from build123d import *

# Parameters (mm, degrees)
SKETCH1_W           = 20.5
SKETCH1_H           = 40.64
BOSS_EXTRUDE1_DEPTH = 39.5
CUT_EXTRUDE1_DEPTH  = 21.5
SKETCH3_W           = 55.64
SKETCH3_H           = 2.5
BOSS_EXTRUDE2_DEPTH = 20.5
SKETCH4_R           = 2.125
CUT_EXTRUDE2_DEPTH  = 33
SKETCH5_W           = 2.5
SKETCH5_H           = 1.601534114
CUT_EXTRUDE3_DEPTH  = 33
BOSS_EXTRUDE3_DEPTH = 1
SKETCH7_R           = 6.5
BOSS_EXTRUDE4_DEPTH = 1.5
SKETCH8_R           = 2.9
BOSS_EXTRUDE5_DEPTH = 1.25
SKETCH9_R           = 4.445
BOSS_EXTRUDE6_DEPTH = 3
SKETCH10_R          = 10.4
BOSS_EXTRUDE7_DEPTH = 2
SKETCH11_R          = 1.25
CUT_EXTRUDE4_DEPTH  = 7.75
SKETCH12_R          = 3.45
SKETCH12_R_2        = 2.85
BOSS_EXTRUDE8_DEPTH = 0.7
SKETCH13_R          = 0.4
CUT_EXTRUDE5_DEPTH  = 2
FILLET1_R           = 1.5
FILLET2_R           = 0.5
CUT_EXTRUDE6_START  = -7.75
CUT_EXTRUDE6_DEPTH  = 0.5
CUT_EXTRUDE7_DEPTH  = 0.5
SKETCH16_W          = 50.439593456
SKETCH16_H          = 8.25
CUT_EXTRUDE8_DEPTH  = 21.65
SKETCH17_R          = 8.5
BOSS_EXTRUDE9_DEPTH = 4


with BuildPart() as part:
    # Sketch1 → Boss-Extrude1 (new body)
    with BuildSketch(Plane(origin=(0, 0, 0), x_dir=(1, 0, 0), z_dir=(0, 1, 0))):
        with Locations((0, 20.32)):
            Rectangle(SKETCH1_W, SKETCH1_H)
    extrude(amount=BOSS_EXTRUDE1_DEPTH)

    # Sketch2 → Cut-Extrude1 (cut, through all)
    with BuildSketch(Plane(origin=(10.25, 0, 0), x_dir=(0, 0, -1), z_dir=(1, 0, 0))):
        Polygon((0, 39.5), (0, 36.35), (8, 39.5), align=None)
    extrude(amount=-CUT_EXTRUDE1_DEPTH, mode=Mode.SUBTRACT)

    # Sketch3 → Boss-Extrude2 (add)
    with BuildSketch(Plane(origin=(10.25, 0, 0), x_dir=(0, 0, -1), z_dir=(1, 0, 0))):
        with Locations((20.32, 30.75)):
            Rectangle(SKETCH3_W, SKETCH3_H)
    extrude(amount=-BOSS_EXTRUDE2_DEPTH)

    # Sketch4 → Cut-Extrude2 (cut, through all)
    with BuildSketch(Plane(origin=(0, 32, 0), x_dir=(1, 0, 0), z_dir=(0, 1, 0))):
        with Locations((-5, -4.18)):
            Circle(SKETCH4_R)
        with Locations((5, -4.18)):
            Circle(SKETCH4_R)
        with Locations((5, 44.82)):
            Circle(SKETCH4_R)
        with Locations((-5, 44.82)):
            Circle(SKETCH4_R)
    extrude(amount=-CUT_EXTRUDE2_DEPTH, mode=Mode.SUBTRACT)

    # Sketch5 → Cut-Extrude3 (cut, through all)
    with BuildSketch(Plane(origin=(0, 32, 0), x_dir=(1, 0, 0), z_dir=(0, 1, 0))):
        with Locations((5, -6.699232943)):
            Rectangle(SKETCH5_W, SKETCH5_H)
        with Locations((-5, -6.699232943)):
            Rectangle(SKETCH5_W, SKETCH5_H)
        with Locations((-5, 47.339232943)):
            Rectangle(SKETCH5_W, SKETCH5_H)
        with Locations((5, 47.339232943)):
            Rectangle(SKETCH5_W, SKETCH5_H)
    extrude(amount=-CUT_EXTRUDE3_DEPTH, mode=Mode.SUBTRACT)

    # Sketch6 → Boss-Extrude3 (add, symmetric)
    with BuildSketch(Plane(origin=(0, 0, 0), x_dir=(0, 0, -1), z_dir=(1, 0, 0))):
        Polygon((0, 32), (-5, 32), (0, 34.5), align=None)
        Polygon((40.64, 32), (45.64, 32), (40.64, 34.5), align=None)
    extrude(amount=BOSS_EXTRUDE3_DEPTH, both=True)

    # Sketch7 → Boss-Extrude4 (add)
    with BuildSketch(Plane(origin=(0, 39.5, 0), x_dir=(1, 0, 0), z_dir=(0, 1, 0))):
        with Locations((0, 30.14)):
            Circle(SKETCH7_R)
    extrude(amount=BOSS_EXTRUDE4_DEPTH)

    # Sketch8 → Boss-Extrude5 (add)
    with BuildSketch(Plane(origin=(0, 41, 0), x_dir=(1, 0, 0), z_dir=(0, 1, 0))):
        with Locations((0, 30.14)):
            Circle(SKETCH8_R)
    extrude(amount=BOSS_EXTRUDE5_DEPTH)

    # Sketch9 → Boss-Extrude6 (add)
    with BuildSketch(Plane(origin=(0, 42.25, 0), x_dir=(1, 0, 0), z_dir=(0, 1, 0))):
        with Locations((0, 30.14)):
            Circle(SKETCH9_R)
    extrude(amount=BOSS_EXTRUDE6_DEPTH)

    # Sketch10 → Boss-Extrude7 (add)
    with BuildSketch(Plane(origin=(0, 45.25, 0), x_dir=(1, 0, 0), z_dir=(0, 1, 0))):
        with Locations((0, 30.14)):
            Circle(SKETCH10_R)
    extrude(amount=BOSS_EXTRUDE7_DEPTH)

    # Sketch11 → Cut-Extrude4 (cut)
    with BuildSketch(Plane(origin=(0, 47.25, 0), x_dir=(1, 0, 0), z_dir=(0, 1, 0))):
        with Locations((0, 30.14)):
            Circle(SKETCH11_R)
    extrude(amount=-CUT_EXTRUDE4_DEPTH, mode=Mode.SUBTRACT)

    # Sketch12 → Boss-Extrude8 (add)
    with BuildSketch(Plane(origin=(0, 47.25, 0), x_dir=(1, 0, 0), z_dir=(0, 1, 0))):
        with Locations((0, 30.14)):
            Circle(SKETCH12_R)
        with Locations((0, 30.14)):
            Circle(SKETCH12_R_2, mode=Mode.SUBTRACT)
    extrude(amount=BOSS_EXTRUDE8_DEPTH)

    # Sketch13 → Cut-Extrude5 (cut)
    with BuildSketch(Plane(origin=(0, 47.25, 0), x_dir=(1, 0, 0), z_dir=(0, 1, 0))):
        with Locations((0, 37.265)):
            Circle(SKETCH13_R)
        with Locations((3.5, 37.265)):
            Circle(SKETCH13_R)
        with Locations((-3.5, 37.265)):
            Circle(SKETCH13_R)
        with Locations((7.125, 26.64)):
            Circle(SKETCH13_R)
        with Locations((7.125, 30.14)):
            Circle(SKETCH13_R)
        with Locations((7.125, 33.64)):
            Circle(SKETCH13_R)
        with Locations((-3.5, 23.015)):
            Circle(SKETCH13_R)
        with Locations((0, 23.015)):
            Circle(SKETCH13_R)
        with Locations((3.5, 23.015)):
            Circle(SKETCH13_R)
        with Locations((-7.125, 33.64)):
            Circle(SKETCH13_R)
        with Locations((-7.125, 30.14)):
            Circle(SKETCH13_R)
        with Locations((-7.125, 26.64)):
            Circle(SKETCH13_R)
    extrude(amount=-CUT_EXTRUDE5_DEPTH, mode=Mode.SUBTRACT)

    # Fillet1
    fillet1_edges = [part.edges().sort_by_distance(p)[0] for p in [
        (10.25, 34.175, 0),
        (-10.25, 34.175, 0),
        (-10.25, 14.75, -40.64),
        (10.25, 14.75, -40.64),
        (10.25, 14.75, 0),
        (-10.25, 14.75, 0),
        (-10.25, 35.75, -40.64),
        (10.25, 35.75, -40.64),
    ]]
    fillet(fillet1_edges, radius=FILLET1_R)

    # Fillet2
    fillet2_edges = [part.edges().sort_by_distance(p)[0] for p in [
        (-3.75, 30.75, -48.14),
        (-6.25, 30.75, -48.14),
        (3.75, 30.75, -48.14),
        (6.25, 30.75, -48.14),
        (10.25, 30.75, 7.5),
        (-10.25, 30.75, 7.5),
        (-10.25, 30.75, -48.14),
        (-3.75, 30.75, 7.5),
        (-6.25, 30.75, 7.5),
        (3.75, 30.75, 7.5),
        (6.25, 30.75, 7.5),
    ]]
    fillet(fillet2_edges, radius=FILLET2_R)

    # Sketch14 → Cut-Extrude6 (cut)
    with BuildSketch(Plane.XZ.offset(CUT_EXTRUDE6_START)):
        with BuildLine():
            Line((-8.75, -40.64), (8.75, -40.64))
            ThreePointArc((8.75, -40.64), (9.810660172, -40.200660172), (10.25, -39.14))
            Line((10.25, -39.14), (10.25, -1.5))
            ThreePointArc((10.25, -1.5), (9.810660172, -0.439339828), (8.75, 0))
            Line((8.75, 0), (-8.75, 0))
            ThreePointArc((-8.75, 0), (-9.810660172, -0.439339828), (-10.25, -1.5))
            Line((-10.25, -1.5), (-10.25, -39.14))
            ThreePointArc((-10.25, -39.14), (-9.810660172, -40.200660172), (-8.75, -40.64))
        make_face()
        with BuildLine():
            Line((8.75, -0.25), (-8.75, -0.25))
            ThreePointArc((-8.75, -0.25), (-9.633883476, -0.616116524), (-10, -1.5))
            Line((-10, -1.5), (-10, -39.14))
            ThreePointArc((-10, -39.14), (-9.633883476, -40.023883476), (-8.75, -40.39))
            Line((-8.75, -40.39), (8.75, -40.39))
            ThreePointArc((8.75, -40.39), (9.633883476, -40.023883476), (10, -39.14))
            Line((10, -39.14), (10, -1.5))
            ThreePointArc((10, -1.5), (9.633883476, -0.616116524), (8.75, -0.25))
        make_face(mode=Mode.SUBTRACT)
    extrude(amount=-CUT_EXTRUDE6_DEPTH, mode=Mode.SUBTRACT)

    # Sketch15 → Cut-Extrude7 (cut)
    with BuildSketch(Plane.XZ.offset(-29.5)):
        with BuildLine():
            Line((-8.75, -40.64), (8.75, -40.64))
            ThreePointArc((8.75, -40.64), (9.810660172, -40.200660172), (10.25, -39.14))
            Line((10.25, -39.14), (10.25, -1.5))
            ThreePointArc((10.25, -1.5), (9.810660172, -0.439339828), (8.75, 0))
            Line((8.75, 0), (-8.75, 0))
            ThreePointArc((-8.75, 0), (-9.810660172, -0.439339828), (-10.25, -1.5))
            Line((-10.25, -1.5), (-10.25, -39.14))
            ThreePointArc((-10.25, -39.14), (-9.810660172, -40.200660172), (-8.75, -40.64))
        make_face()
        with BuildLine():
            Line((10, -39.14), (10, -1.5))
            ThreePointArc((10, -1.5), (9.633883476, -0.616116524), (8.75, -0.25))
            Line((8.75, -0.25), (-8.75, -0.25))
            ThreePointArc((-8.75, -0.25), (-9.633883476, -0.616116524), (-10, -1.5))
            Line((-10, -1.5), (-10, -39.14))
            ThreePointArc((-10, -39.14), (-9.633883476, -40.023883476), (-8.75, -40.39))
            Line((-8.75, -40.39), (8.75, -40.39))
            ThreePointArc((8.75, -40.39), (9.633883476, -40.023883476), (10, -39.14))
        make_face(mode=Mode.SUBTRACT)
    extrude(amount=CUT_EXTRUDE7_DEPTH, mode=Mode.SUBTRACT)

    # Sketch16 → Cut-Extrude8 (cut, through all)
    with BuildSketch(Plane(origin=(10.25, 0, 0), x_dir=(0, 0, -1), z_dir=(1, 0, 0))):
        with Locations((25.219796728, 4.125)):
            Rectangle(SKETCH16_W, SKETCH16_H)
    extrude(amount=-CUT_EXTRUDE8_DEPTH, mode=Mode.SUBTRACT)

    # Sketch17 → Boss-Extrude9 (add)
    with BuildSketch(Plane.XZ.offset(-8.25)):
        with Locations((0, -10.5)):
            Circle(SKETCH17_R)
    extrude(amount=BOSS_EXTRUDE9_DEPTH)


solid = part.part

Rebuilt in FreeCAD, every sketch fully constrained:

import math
import FreeCAD as App
import Part
import Sketcher
Q = App.Units.Quantity


def edges_at(feature, points):
    """Names of the edges that pass closest to the given points."""
    edges = feature.Shape.Edges
    near = lambda p: min(range(len(edges)), key=lambda i: edges[i].distToShape(Part.Vertex(*p))[0])
    return sorted({f"Edge{near(p) + 1}" for p in points})

doc = App.newDocument("Part")
body = doc.addObject("PartDesign::Body", "Body")

# Sketch on XZ plane
sketch1 = body.newObject("Sketcher::SketchObject", "Sketch")
sketch1.AttachmentSupport = (doc.getObject("XZ_Plane"), [""])
sketch1.MapMode = "FlatFace"
sketch1.addGeometry([
    Part.LineSegment(App.Vector(-10.25, -40.64, 0), App.Vector(-10.25, 0, 0)),
    Part.LineSegment(App.Vector(-10.25, 0, 0), App.Vector(10.25, 0, 0)),
    Part.LineSegment(App.Vector(10.25, 0, 0), App.Vector(10.25, -40.64, 0)),
    Part.LineSegment(App.Vector(10.25, -40.64, 0), App.Vector(-10.25, -40.64, 0)),
], False)
sketch1.addConstraint([
    Sketcher.Constraint("Coincident", 0, 2, 1, 1),
    Sketcher.Constraint("Coincident", 1, 2, 2, 1),
    Sketcher.Constraint("Coincident", 2, 2, 3, 1),
    Sketcher.Constraint("Coincident", 3, 2, 0, 1),
    Sketcher.Constraint("Vertical", 0),
    Sketcher.Constraint("Horizontal", 1),
    Sketcher.Constraint("Vertical", 2),
    Sketcher.Constraint("Horizontal", 3),
    Sketcher.Constraint("Symmetric", 0, 2, 1, 2, -1, 1),
    Sketcher.Constraint("DistanceX", 1, 1, 1, 2, Q("20.5 mm")),
    Sketcher.Constraint("DistanceY", 0, 1, 0, 2, Q("40.64 mm")),
])
pad1 = body.newObject("PartDesign::Pad", "Pad")
pad1.Profile = sketch1
pad1.Length = 39.5
pad1.Reversed = True

# Sketch on YZ plane
sketch2 = body.newObject("Sketcher::SketchObject", "Sketch001")
sketch2.AttachmentSupport = (doc.getObject("YZ_Plane"), [""])
sketch2.MapMode = "FlatFace"
sketch2.AttachmentOffset = App.Placement(App.Vector(0, 0, 10.25), App.Rotation())
sketch2.addGeometry([
    Part.LineSegment(App.Vector(39.5, 0, 0), App.Vector(36.35, 0, 0)),
    Part.LineSegment(App.Vector(36.35, 0, 0), App.Vector(39.5, -8, 0)),
    Part.LineSegment(App.Vector(39.5, -8, 0), App.Vector(39.5, 0, 0)),
], False)
sketch2.addConstraint([
    Sketcher.Constraint("Coincident", 0, 2, 1, 1),
    Sketcher.Constraint("Coincident", 1, 2, 2, 1),
    Sketcher.Constraint("Coincident", 2, 2, 0, 1),
    Sketcher.Constraint("Horizontal", 0),
    Sketcher.Constraint("Vertical", 2),
    Sketcher.Constraint("PointOnObject", 0, 2, -1),
    Sketcher.Constraint("DistanceY", 2, 1, 2, 2, Q("8 mm")),
    Sketcher.Constraint("DistanceX", 0, 2, 0, 1, Q("3.15 mm")),
    Sketcher.Constraint("DistanceX", -1, 1, 1, 2, Q("39.5 mm")),
])
pocket1 = body.newObject("PartDesign::Pocket", "Pocket")
pocket1.Profile = sketch2
pocket1.Type = "ThroughAll"

# Sketch on YZ plane
sketch3 = body.newObject("Sketcher::SketchObject", "Sketch002")
sketch3.AttachmentSupport = (doc.getObject("YZ_Plane"), [""])
sketch3.MapMode = "FlatFace"
sketch3.AttachmentOffset = App.Placement(App.Vector(0, 0, 10.25), App.Rotation())
sketch3.addGeometry([
    Part.LineSegment(App.Vector(32, 7.5, 0), App.Vector(29.5, 7.5, 0)),
    Part.LineSegment(App.Vector(29.5, 7.5, 0), App.Vector(29.5, -48.14, 0)),
    Part.LineSegment(App.Vector(29.5, -48.14, 0), App.Vector(32, -48.14, 0)),
    Part.LineSegment(App.Vector(32, -48.14, 0), App.Vector(32, 7.5, 0)),
], False)
sketch3.addConstraint([
    Sketcher.Constraint("Coincident", 0, 2, 1, 1),
    Sketcher.Constraint("Coincident", 1, 2, 2, 1),
    Sketcher.Constraint("Coincident", 2, 2, 3, 1),
    Sketcher.Constraint("Coincident", 3, 2, 0, 1),
    Sketcher.Constraint("Horizontal", 0),
    Sketcher.Constraint("Vertical", 1),
    Sketcher.Constraint("Horizontal", 2),
    Sketcher.Constraint("Vertical", 3),
    Sketcher.Constraint("DistanceX", 0, 2, 0, 1, Q("2.5 mm")),
    Sketcher.Constraint("DistanceX", -1, 1, 2, 2, Q("32 mm")),
    Sketcher.Constraint("DistanceY", 1, 2, 1, 1, Q("55.64 mm")),
    Sketcher.Constraint("DistanceY", -1, 1, 0, 2, Q("7.5 mm")),
])
pad2 = body.newObject("PartDesign::Pad", "Pad001")
pad2.Profile = sketch3
pad2.Length = 20.5
pad2.Reversed = True

# Sketch on XZ plane
sketch4 = body.newObject("Sketcher::SketchObject", "Sketch003")
sketch4.AttachmentSupport = (doc.getObject("XZ_Plane"), [""])
sketch4.MapMode = "FlatFace"
sketch4.AttachmentOffset = App.Placement(App.Vector(0, 0, -32), App.Rotation())
sketch4.addGeometry([
    Part.Circle(App.Vector(-5, 4.18, 0), App.Vector(0, 0, 1), 2.125),
    Part.Circle(App.Vector(5, 4.18, 0), App.Vector(0, 0, 1), 2.125),
    Part.Circle(App.Vector(5, -44.82, 0), App.Vector(0, 0, 1), 2.125),
    Part.Circle(App.Vector(-5, -44.82, 0), App.Vector(0, 0, 1), 2.125),
], False)
sketch4.addConstraint([
    Sketcher.Constraint("Equal", 0, 1),
    Sketcher.Constraint("Equal", 1, 2),
    Sketcher.Constraint("Equal", 2, 3),
    Sketcher.Constraint("Symmetric", 0, 3, 1, 3, -2),
    Sketcher.Constraint("Symmetric", 2, 3, 3, 3, -2),
    Sketcher.Constraint("Vertical", 1, 3, 2, 3),
    Sketcher.Constraint("Diameter", 0, Q("4.25 mm")),
    Sketcher.Constraint("DistanceX", 0, 3, -1, 1, Q("5 mm")),
    Sketcher.Constraint("DistanceY", 2, 3, 1, 3, Q("49 mm")),
    Sketcher.Constraint("DistanceY", -1, 1, 0, 3, Q("4.18 mm")),
])
pocket2 = body.newObject("PartDesign::Pocket", "Pocket001")
pocket2.Profile = sketch4
pocket2.Type = "ThroughAll"
pocket2.Reversed = True

# Sketch on XZ plane
sketch5 = body.newObject("Sketcher::SketchObject", "Sketch004")
sketch5.AttachmentSupport = (doc.getObject("XZ_Plane"), [""])
sketch5.MapMode = "FlatFace"
sketch5.AttachmentOffset = App.Placement(App.Vector(0, 0, -32), App.Rotation())
sketch5.addGeometry([
    Part.LineSegment(App.Vector(3.75, 5.898466, 0), App.Vector(3.75, 7.5, 0)),  # 0
    Part.LineSegment(App.Vector(3.75, 7.5, 0), App.Vector(6.25, 7.5, 0)),  # 1
    Part.LineSegment(App.Vector(6.25, 7.5, 0), App.Vector(6.25, 5.898466, 0)),  # 2
    Part.LineSegment(App.Vector(6.25, 5.898466, 0), App.Vector(3.75, 5.898466, 0)),  # 3
    Part.LineSegment(App.Vector(-6.25, 5.898466, 0), App.Vector(-6.25, 7.5, 0)),  # 4
    Part.LineSegment(App.Vector(-6.25, 7.5, 0), App.Vector(-3.75, 7.5, 0)),  # 5
    Part.LineSegment(App.Vector(-3.75, 7.5, 0), App.Vector(-3.75, 5.898466, 0)),  # 6
    Part.LineSegment(App.Vector(-3.75, 5.898466, 0), App.Vector(-6.25, 5.898466, 0)),  # 7
    Part.LineSegment(App.Vector(-6.25, -48.14, 0), App.Vector(-6.25, -46.538466, 0)),  # 8
    Part.LineSegment(App.Vector(-6.25, -46.538466, 0), App.Vector(-3.75, -46.538466, 0)),  # 9
    Part.LineSegment(App.Vector(-3.75, -46.538466, 0), App.Vector(-3.75, -48.14, 0)),  # 10
    Part.LineSegment(App.Vector(-3.75, -48.14, 0), App.Vector(-6.25, -48.14, 0)),  # 11
    Part.LineSegment(App.Vector(3.75, -48.14, 0), App.Vector(3.75, -46.538466, 0)),  # 12
    Part.LineSegment(App.Vector(3.75, -46.538466, 0), App.Vector(6.25, -46.538466, 0)),  # 13
    Part.LineSegment(App.Vector(6.25, -46.538466, 0), App.Vector(6.25, -48.14, 0)),  # 14
    Part.LineSegment(App.Vector(6.25, -48.14, 0), App.Vector(3.75, -48.14, 0)),  # 15
], False)
sketch5.addConstraint([
    Sketcher.Constraint("Coincident", 0, 2, 1, 1),
    Sketcher.Constraint("Coincident", 1, 2, 2, 1),
    Sketcher.Constraint("Coincident", 2, 2, 3, 1),
    Sketcher.Constraint("Coincident", 3, 2, 0, 1),
    Sketcher.Constraint("Coincident", 4, 2, 5, 1),
    Sketcher.Constraint("Coincident", 5, 2, 6, 1),
    Sketcher.Constraint("Coincident", 6, 2, 7, 1),
    Sketcher.Constraint("Coincident", 7, 2, 4, 1),
    Sketcher.Constraint("Coincident", 8, 2, 9, 1),
    Sketcher.Constraint("Coincident", 9, 2, 10, 1),
    Sketcher.Constraint("Coincident", 10, 2, 11, 1),
    Sketcher.Constraint("Coincident", 11, 2, 8, 1),
    Sketcher.Constraint("Coincident", 12, 2, 13, 1),
    Sketcher.Constraint("Coincident", 13, 2, 14, 1),
    Sketcher.Constraint("Coincident", 14, 2, 15, 1),
    Sketcher.Constraint("Coincident", 15, 2, 12, 1),
    Sketcher.Constraint("Vertical", 0),
    Sketcher.Constraint("Horizontal", 1),
    Sketcher.Constraint("Vertical", 2),
    Sketcher.Constraint("Horizontal", 3),
    Sketcher.Constraint("Vertical", 4),
    Sketcher.Constraint("Horizontal", 5),
    Sketcher.Constraint("Vertical", 6),
    Sketcher.Constraint("Horizontal", 7),
    Sketcher.Constraint("Vertical", 8),
    Sketcher.Constraint("Horizontal", 9),
    Sketcher.Constraint("Vertical", 10),
    Sketcher.Constraint("Horizontal", 11),
    Sketcher.Constraint("Vertical", 12),
    Sketcher.Constraint("Horizontal", 13),
    Sketcher.Constraint("Vertical", 14),
    Sketcher.Constraint("Horizontal", 15),
    Sketcher.Constraint("Symmetric", 1, 2, 4, 2, -2),
    Sketcher.Constraint("Symmetric", 3, 2, 6, 2, -2),
    Sketcher.Constraint("Symmetric", 9, 2, 12, 2, -2),
    Sketcher.Constraint("Symmetric", 11, 2, 14, 2, -2),
    Sketcher.Constraint("Vertical", 7, 2, 8, 2),
    Sketcher.Constraint("Vertical", 6, 2, 9, 2),
    Sketcher.Constraint("Equal", 6, 8),
    Sketcher.Constraint("DistanceX", 1, 1, 1, 2, Q("2.5 mm")),
    Sketcher.Constraint("DistanceX", 4, 2, 0, 2, Q("10 mm")),
    Sketcher.Constraint("DistanceY", -1, 1, 0, 2, Q("7.5 mm")),
    Sketcher.Constraint("DistanceY", 10, 2, -1, 1, Q("48.14 mm")),
    Sketcher.Constraint("DistanceY", 0, 1, 0, 2, Q("1.601534 mm")),
])
pocket3 = body.newObject("PartDesign::Pocket", "Pocket002")
pocket3.Profile = sketch5
pocket3.Type = "ThroughAll"
pocket3.Reversed = True

# Sketch on YZ plane
sketch6 = body.newObject("Sketcher::SketchObject", "Sketch005")
sketch6.AttachmentSupport = (doc.getObject("YZ_Plane"), [""])
sketch6.MapMode = "FlatFace"
sketch6.addGeometry([
    Part.LineSegment(App.Vector(32, 5, 0), App.Vector(32, 0, 0)),  # 0
    Part.LineSegment(App.Vector(32, 0, 0), App.Vector(34.5, 0, 0)),  # 1
    Part.LineSegment(App.Vector(34.5, 0, 0), App.Vector(32, 5, 0)),  # 2
    Part.LineSegment(App.Vector(32, -40.64, 0), App.Vector(32, -45.64, 0)),  # 3
    Part.LineSegment(App.Vector(32, -45.64, 0), App.Vector(34.5, -40.64, 0)),  # 4
    Part.LineSegment(App.Vector(34.5, -40.64, 0), App.Vector(32, -40.64, 0)),  # 5
], False)
sketch6.addConstraint([
    Sketcher.Constraint("Coincident", 0, 2, 1, 1),
    Sketcher.Constraint("Coincident", 1, 2, 2, 1),
    Sketcher.Constraint("Coincident", 2, 2, 0, 1),
    Sketcher.Constraint("Coincident", 3, 2, 4, 1),
    Sketcher.Constraint("Coincident", 4, 2, 5, 1),
    Sketcher.Constraint("Coincident", 5, 2, 3, 1),
    Sketcher.Constraint("Vertical", 0),
    Sketcher.Constraint("Horizontal", 1),
    Sketcher.Constraint("Vertical", 3),
    Sketcher.Constraint("Horizontal", 5),
    Sketcher.Constraint("PointOnObject", 0, 2, -1),
    Sketcher.Constraint("Vertical", 2, 2, 3, 2),
    Sketcher.Constraint("Vertical", 1, 2, 4, 2),
    Sketcher.Constraint("Equal", 0, 3),
    Sketcher.Constraint("DistanceY", 0, 2, 0, 1, Q("5 mm")),
    Sketcher.Constraint("DistanceX", 1, 1, 1, 2, Q("2.5 mm")),
    Sketcher.Constraint("DistanceX", -1, 1, 0, 2, Q("32 mm")),
    Sketcher.Constraint("DistanceY", 3, 2, -1, 1, Q("45.64 mm")),
])
pad3 = body.newObject("PartDesign::Pad", "Pad002")
pad3.Profile = sketch6
pad3.Length = 2
pad3.Midplane = True

# Sketch on XZ plane
sketch7 = body.newObject("Sketcher::SketchObject", "Sketch006")
sketch7.AttachmentSupport = (doc.getObject("XZ_Plane"), [""])
sketch7.MapMode = "FlatFace"
sketch7.AttachmentOffset = App.Placement(App.Vector(0, 0, -39.5), App.Rotation())
sketch7.addGeometry(Part.Circle(App.Vector(0, -30.14, 0), App.Vector(0, 0, 1), 6.5), False)
sketch7.addConstraint([
    Sketcher.Constraint("PointOnObject", 0, 3, -2),
    Sketcher.Constraint("Diameter", 0, Q("13 mm")),
    Sketcher.Constraint("DistanceY", 0, 3, -1, 1, Q("30.14 mm")),
])
pad4 = body.newObject("PartDesign::Pad", "Pad003")
pad4.Profile = sketch7
pad4.Length = 1.5
pad4.Reversed = True

# Sketch on XZ plane
sketch8 = body.newObject("Sketcher::SketchObject", "Sketch007")
sketch8.AttachmentSupport = (doc.getObject("XZ_Plane"), [""])
sketch8.MapMode = "FlatFace"
sketch8.AttachmentOffset = App.Placement(App.Vector(0, 0, -41), App.Rotation())
sketch8.addGeometry(Part.Circle(App.Vector(0, -30.14, 0), App.Vector(0, 0, 1), 2.9), False)
sketch8.addConstraint([
    Sketcher.Constraint("PointOnObject", 0, 3, -2),
    Sketcher.Constraint("Diameter", 0, Q("5.8 mm")),
    Sketcher.Constraint("DistanceY", 0, 3, -1, 1, Q("30.14 mm")),
])
pad5 = body.newObject("PartDesign::Pad", "Pad004")
pad5.Profile = sketch8
pad5.Length = 1.25
pad5.Reversed = True

# Sketch on XZ plane
sketch9 = body.newObject("Sketcher::SketchObject", "Sketch008")
sketch9.AttachmentSupport = (doc.getObject("XZ_Plane"), [""])
sketch9.MapMode = "FlatFace"
sketch9.AttachmentOffset = App.Placement(App.Vector(0, 0, -42.25), App.Rotation())
sketch9.addGeometry(Part.Circle(App.Vector(0, -30.14, 0), App.Vector(0, 0, 1), 4.445), False)
sketch9.addConstraint([
    Sketcher.Constraint("PointOnObject", 0, 3, -2),
    Sketcher.Constraint("Diameter", 0, Q("8.89 mm")),
    Sketcher.Constraint("DistanceY", 0, 3, -1, 1, Q("30.14 mm")),
])
pad6 = body.newObject("PartDesign::Pad", "Pad005")
pad6.Profile = sketch9
pad6.Length = 3
pad6.Reversed = True

# Sketch on XZ plane
sketch10 = body.newObject("Sketcher::SketchObject", "Sketch009")
sketch10.AttachmentSupport = (doc.getObject("XZ_Plane"), [""])
sketch10.MapMode = "FlatFace"
sketch10.AttachmentOffset = App.Placement(App.Vector(0, 0, -45.25), App.Rotation())
sketch10.addGeometry(Part.Circle(App.Vector(0, -30.14, 0), App.Vector(0, 0, 1), 10.4), False)
sketch10.addConstraint([
    Sketcher.Constraint("PointOnObject", 0, 3, -2),
    Sketcher.Constraint("Diameter", 0, Q("20.8 mm")),
    Sketcher.Constraint("DistanceY", 0, 3, -1, 1, Q("30.14 mm")),
])
pad7 = body.newObject("PartDesign::Pad", "Pad006")
pad7.Profile = sketch10
pad7.Length = 2
pad7.Reversed = True

# Sketch on XZ plane
sketch11 = body.newObject("Sketcher::SketchObject", "Sketch010")
sketch11.AttachmentSupport = (doc.getObject("XZ_Plane"), [""])
sketch11.MapMode = "FlatFace"
sketch11.AttachmentOffset = App.Placement(App.Vector(0, 0, -47.25), App.Rotation())
sketch11.addGeometry(Part.Circle(App.Vector(0, -30.14, 0), App.Vector(0, 0, 1), 1.25), False)
sketch11.addConstraint([
    Sketcher.Constraint("PointOnObject", 0, 3, -2),
    Sketcher.Constraint("Diameter", 0, Q("2.5 mm")),
    Sketcher.Constraint("DistanceY", 0, 3, -1, 1, Q("30.14 mm")),
])
pocket4 = body.newObject("PartDesign::Pocket", "Pocket003")
pocket4.Profile = sketch11
pocket4.Length = 7.75
pocket4.Reversed = True

# Sketch on XZ plane
sketch12 = body.newObject("Sketcher::SketchObject", "Sketch011")
sketch12.AttachmentSupport = (doc.getObject("XZ_Plane"), [""])
sketch12.MapMode = "FlatFace"
sketch12.AttachmentOffset = App.Placement(App.Vector(0, 0, -47.25), App.Rotation())
sketch12.addGeometry([
    Part.Circle(App.Vector(0, -30.14, 0), App.Vector(0, 0, 1), 3.45),
    Part.Circle(App.Vector(0, -30.14, 0), App.Vector(0, 0, 1), 2.85),
], False)
sketch12.addConstraint([
    Sketcher.Constraint("Coincident", 1, 3, 0, 3),
    Sketcher.Constraint("PointOnObject", 0, 3, -2),
    Sketcher.Constraint("Diameter", 0, Q("6.9 mm")),
    Sketcher.Constraint("Diameter", 1, Q("5.7 mm")),
    Sketcher.Constraint("DistanceY", 0, 3, -1, 1, Q("30.14 mm")),
])
pad8 = body.newObject("PartDesign::Pad", "Pad007")
pad8.Profile = sketch12
pad8.Length = 0.7
pad8.Reversed = True

# Sketch on XZ plane
sketch13 = body.newObject("Sketcher::SketchObject", "Sketch012")
sketch13.AttachmentSupport = (doc.getObject("XZ_Plane"), [""])
sketch13.MapMode = "FlatFace"
sketch13.AttachmentOffset = App.Placement(App.Vector(0, 0, -47.25), App.Rotation())
sketch13.addGeometry([
    Part.Circle(App.Vector(0, -37.265, 0), App.Vector(0, 0, 1), 0.4),  # 0
    Part.Circle(App.Vector(3.5, -37.265, 0), App.Vector(0, 0, 1), 0.4),  # 1
    Part.Circle(App.Vector(-3.5, -37.265, 0), App.Vector(0, 0, 1), 0.4),  # 2
    Part.Circle(App.Vector(7.125, -26.64, 0), App.Vector(0, 0, 1), 0.4),  # 3
    Part.Circle(App.Vector(7.125, -30.14, 0), App.Vector(0, 0, 1), 0.4),  # 4
    Part.Circle(App.Vector(7.125, -33.64, 0), App.Vector(0, 0, 1), 0.4),  # 5
    Part.Circle(App.Vector(-3.5, -23.015, 0), App.Vector(0, 0, 1), 0.4),  # 6
    Part.Circle(App.Vector(0, -23.015, 0), App.Vector(0, 0, 1), 0.4),  # 7
    Part.Circle(App.Vector(3.5, -23.015, 0), App.Vector(0, 0, 1), 0.4),  # 8
    Part.Circle(App.Vector(-7.125, -33.64, 0), App.Vector(0, 0, 1), 0.4),  # 9
    Part.Circle(App.Vector(-7.125, -30.14, 0), App.Vector(0, 0, 1), 0.4),  # 10
    Part.Circle(App.Vector(-7.125, -26.64, 0), App.Vector(0, 0, 1), 0.4),  # 11
], False)
sketch13.addConstraint([
    Sketcher.Constraint("Equal", 0, 1),
    Sketcher.Constraint("Equal", 1, 2),
    Sketcher.Constraint("Equal", 2, 3),
    Sketcher.Constraint("Equal", 3, 4),
    Sketcher.Constraint("Equal", 4, 5),
    Sketcher.Constraint("Equal", 5, 6),
    Sketcher.Constraint("Equal", 6, 7),
    Sketcher.Constraint("Equal", 7, 8),
    Sketcher.Constraint("Equal", 8, 9),
    Sketcher.Constraint("Equal", 9, 10),
    Sketcher.Constraint("Equal", 10, 11),
    Sketcher.Constraint("Symmetric", 1, 3, 2, 3, -2),
    Sketcher.Constraint("Symmetric", 6, 3, 8, 3, -2),
    Sketcher.Constraint("Symmetric", 5, 3, 9, 3, -2),
    Sketcher.Constraint("Symmetric", 4, 3, 10, 3, -2),
    Sketcher.Constraint("Symmetric", 3, 3, 11, 3, -2),
    Sketcher.Constraint("PointOnObject", 0, 3, -2),
    Sketcher.Constraint("PointOnObject", 7, 3, -2),
    Sketcher.Constraint("Horizontal", 0, 3, 1, 3),
    Sketcher.Constraint("Horizontal", 6, 3, 7, 3),
    Sketcher.Constraint("Vertical", 3, 3, 4, 3),
    Sketcher.Constraint("Vertical", 4, 3, 5, 3),
    Sketcher.Constraint("Vertical", 2, 3, 6, 3),
    Sketcher.Constraint("Diameter", 0, Q("0.8 mm")),
    Sketcher.Constraint("DistanceX", 2, 3, 1, 3, Q("7 mm")),
    Sketcher.Constraint("DistanceY", 5, 3, 3, 3, Q("7 mm")),
    Sketcher.Constraint("DistanceY", 4, 3, 3, 3, Q("3.5 mm")),
    Sketcher.Constraint("DistanceY", 3, 3, -1, 1, Q("26.64 mm")),
    Sketcher.Constraint("DistanceY", 2, 3, 6, 3, Q("14.25 mm")),
    Sketcher.Constraint("DistanceY", 0, 3, -1, 1, Q("37.265 mm")),
    Sketcher.Constraint("DistanceX", -1, 1, 3, 3, Q("7.125 mm")),
])
pocket5 = body.newObject("PartDesign::Pocket", "Pocket004")
pocket5.Profile = sketch13
pocket5.Length = 2
pocket5.Reversed = True
doc.recompute()

fillet = body.newObject("PartDesign::Fillet", "Fillet")
fillet.Base = (pocket5, edges_at(pocket5, [
    (10.25, 34.175, 0),
    (-10.25, 34.175, 0),
    (-10.25, 14.75, -40.64),
    (10.25, 14.75, -40.64),
    (10.25, 14.75, 0),
    (-10.25, 14.75, 0),
    (-10.25, 35.75, -40.64),
    (10.25, 35.75, -40.64),
]))
fillet.Radius = 1.5
doc.recompute()

fillet2 = body.newObject("PartDesign::Fillet", "Fillet001")
fillet2.Base = (fillet, edges_at(fillet, [
    (-3.75, 30.75, -48.14),
    (-6.25, 30.75, -48.14),
    (3.75, 30.75, -48.14),
    (6.25, 30.75, -48.14),
    (10.25, 30.75, 7.5),
    (-10.25, 30.75, 7.5),
    (-10.25, 30.75, -48.14),
    (-3.75, 30.75, 7.5),
    (-6.25, 30.75, 7.5),
    (3.75, 30.75, 7.5),
    (6.25, 30.75, 7.5),
]))
fillet2.Radius = 0.5

# Sketch on XZ plane
sketch14 = body.newObject("Sketcher::SketchObject", "Sketch013")
sketch14.AttachmentSupport = (doc.getObject("XZ_Plane"), [""])
sketch14.MapMode = "FlatFace"
sketch14.AttachmentOffset = App.Placement(App.Vector(0, 0, -7.75), App.Rotation())
sketch14.addGeometry([
    Part.LineSegment(App.Vector(-8.75, -40.64, 0), App.Vector(8.75, -40.64, 0)),  # 0
    Part.ArcOfCircle(Part.Circle(App.Vector(8.75, -39.14, 0), App.Vector(0, 0, 1), 1.5), math.radians(-90), math.radians(0)),  # 1
    Part.LineSegment(App.Vector(10.25, -39.14, 0), App.Vector(10.25, -1.5, 0)),  # 2
    Part.ArcOfCircle(Part.Circle(App.Vector(8.75, -1.5, 0), App.Vector(0, 0, 1), 1.5), math.radians(0), math.radians(90)),  # 3
    Part.LineSegment(App.Vector(8.75, 0, 0), App.Vector(-8.75, 0, 0)),  # 4
    Part.ArcOfCircle(Part.Circle(App.Vector(-8.75, -1.5, 0), App.Vector(0, 0, 1), 1.5), math.radians(90), math.radians(180)),  # 5
    Part.LineSegment(App.Vector(-10.25, -1.5, 0), App.Vector(-10.25, -39.14, 0)),  # 6
    Part.ArcOfCircle(Part.Circle(App.Vector(-8.75, -39.14, 0), App.Vector(0, 0, 1), 1.5), math.radians(180), math.radians(270)),  # 7
    Part.LineSegment(App.Vector(-8.75, -0.25, 0), App.Vector(8.75, -0.25, 0)),  # 8
    Part.ArcOfCircle(Part.Circle(App.Vector(8.75, -1.5, 0), App.Vector(0, 0, 1), 1.25), math.radians(0), math.radians(90)),  # 9
    Part.LineSegment(App.Vector(10, -1.5, 0), App.Vector(10, -39.14, 0)),  # 10
    Part.ArcOfCircle(Part.Circle(App.Vector(8.75, -39.14, 0), App.Vector(0, 0, 1), 1.25), math.radians(-90), math.radians(0)),  # 11
    Part.LineSegment(App.Vector(8.75, -40.39, 0), App.Vector(-8.75, -40.39, 0)),  # 12
    Part.ArcOfCircle(Part.Circle(App.Vector(-8.75, -39.14, 0), App.Vector(0, 0, 1), 1.25), math.radians(-180), math.radians(-90)),  # 13
    Part.LineSegment(App.Vector(-10, -39.14, 0), App.Vector(-10, -1.5, 0)),  # 14
    Part.ArcOfCircle(Part.Circle(App.Vector(-8.75, -1.5, 0), App.Vector(0, 0, 1), 1.25), math.radians(90), math.radians(180)),  # 15
], False)
sketch14.addConstraint([
    Sketcher.Constraint("Tangent", 0, 2, 1, 1),
    Sketcher.Constraint("Tangent", 1, 2, 2, 1),
    Sketcher.Constraint("Tangent", 2, 2, 3, 1),
    Sketcher.Constraint("Tangent", 3, 2, 4, 1),
    Sketcher.Constraint("Tangent", 4, 2, 5, 1),
    Sketcher.Constraint("Tangent", 5, 2, 6, 1),
    Sketcher.Constraint("Tangent", 6, 2, 7, 1),
    Sketcher.Constraint("Tangent", 7, 2, 0, 1),
    Sketcher.Constraint("Tangent", 8, 2, 9, 2),
    Sketcher.Constraint("Tangent", 9, 1, 10, 1),
    Sketcher.Constraint("Tangent", 10, 2, 11, 2),
    Sketcher.Constraint("Tangent", 11, 1, 12, 1),
    Sketcher.Constraint("Tangent", 12, 2, 13, 2),
    Sketcher.Constraint("Tangent", 13, 1, 14, 1),
    Sketcher.Constraint("Tangent", 14, 2, 15, 2),
    Sketcher.Constraint("Tangent", 15, 1, 8, 1),
    Sketcher.Constraint("Horizontal", 0),
    Sketcher.Constraint("Vertical", 2),
    Sketcher.Constraint("Horizontal", 4),
    Sketcher.Constraint("Vertical", 6),
    Sketcher.Constraint("Horizontal", 8),
    Sketcher.Constraint("Vertical", 10),
    Sketcher.Constraint("Horizontal", 12),
    Sketcher.Constraint("Vertical", 14),
    Sketcher.Constraint("Coincident", 9, 3, 3, 3),
    Sketcher.Constraint("Coincident", 11, 3, 1, 3),
    Sketcher.Constraint("Coincident", 13, 3, 7, 3),
    Sketcher.Constraint("Equal", 1, 3),
    Sketcher.Constraint("Equal", 3, 5),
    Sketcher.Constraint("Equal", 5, 7),
    Sketcher.Constraint("Equal", 13, 15),
    Sketcher.Constraint("Symmetric", 3, 2, 4, 2, -1, 1),
    Sketcher.Constraint("Radius", 1, Q("1.5 mm")),
    Sketcher.Constraint("Radius", 9, Q("1.25 mm")),
    Sketcher.Constraint("DistanceX", 0, 1, 0, 2, Q("17.5 mm")),
    Sketcher.Constraint("DistanceY", 2, 1, 2, 2, Q("37.64 mm")),
])
pocket6 = body.newObject("PartDesign::Pocket", "Pocket005")
pocket6.Profile = sketch14
pocket6.Length = 0.5

# Sketch on XZ plane
sketch15 = body.newObject("Sketcher::SketchObject", "Sketch014")
sketch15.AttachmentSupport = (doc.getObject("XZ_Plane"), [""])
sketch15.MapMode = "FlatFace"
sketch15.AttachmentOffset = App.Placement(App.Vector(0, 0, -29.5), App.Rotation())
sketch15.addGeometry([
    Part.LineSegment(App.Vector(-8.75, -40.64, 0), App.Vector(8.75, -40.64, 0)),  # 0
    Part.ArcOfCircle(Part.Circle(App.Vector(8.75, -39.14, 0), App.Vector(0, 0, 1), 1.5), math.radians(-90), math.radians(0)),  # 1
    Part.LineSegment(App.Vector(10.25, -39.14, 0), App.Vector(10.25, -1.5, 0)),  # 2
    Part.ArcOfCircle(Part.Circle(App.Vector(8.75, -1.5, 0), App.Vector(0, 0, 1), 1.5), math.radians(0), math.radians(90)),  # 3
    Part.LineSegment(App.Vector(8.75, 0, 0), App.Vector(-8.75, 0, 0)),  # 4
    Part.ArcOfCircle(Part.Circle(App.Vector(-8.75, -1.5, 0), App.Vector(0, 0, 1), 1.5), math.radians(90), math.radians(180)),  # 5
    Part.LineSegment(App.Vector(-10.25, -1.5, 0), App.Vector(-10.25, -39.14, 0)),  # 6
    Part.ArcOfCircle(Part.Circle(App.Vector(-8.75, -39.14, 0), App.Vector(0, 0, 1), 1.5), math.radians(180), math.radians(270)),  # 7
    Part.LineSegment(App.Vector(10, -1.5, 0), App.Vector(10, -39.14, 0)),  # 8
    Part.ArcOfCircle(Part.Circle(App.Vector(8.75, -39.14, 0), App.Vector(0, 0, 1), 1.25), math.radians(-90), math.radians(0)),  # 9
    Part.LineSegment(App.Vector(8.75, -40.39, 0), App.Vector(-8.75, -40.39, 0)),  # 10
    Part.ArcOfCircle(Part.Circle(App.Vector(-8.75, -39.14, 0), App.Vector(0, 0, 1), 1.25), math.radians(-180), math.radians(-90)),  # 11
    Part.LineSegment(App.Vector(-10, -39.14, 0), App.Vector(-10, -1.5, 0)),  # 12
    Part.ArcOfCircle(Part.Circle(App.Vector(-8.75, -1.5, 0), App.Vector(0, 0, 1), 1.25), math.radians(90), math.radians(180)),  # 13
    Part.LineSegment(App.Vector(-8.75, -0.25, 0), App.Vector(8.75, -0.25, 0)),  # 14
    Part.ArcOfCircle(Part.Circle(App.Vector(8.75, -1.5, 0), App.Vector(0, 0, 1), 1.25), math.radians(0), math.radians(90)),  # 15
], False)
sketch15.addConstraint([
    Sketcher.Constraint("Tangent", 0, 2, 1, 1),
    Sketcher.Constraint("Tangent", 1, 2, 2, 1),
    Sketcher.Constraint("Tangent", 2, 2, 3, 1),
    Sketcher.Constraint("Tangent", 3, 2, 4, 1),
    Sketcher.Constraint("Tangent", 4, 2, 5, 1),
    Sketcher.Constraint("Tangent", 5, 2, 6, 1),
    Sketcher.Constraint("Tangent", 6, 2, 7, 1),
    Sketcher.Constraint("Tangent", 7, 2, 0, 1),
    Sketcher.Constraint("Tangent", 8, 2, 9, 2),
    Sketcher.Constraint("Tangent", 9, 1, 10, 1),
    Sketcher.Constraint("Tangent", 10, 2, 11, 2),
    Sketcher.Constraint("Tangent", 11, 1, 12, 1),
    Sketcher.Constraint("Tangent", 12, 2, 13, 2),
    Sketcher.Constraint("Tangent", 13, 1, 14, 1),
    Sketcher.Constraint("Tangent", 14, 2, 15, 2),
    Sketcher.Constraint("Tangent", 15, 1, 8, 1),
    Sketcher.Constraint("Horizontal", 0),
    Sketcher.Constraint("Vertical", 2),
    Sketcher.Constraint("Horizontal", 4),
    Sketcher.Constraint("Vertical", 6),
    Sketcher.Constraint("Vertical", 8),
    Sketcher.Constraint("Horizontal", 10),
    Sketcher.Constraint("Vertical", 12),
    Sketcher.Constraint("Horizontal", 14),
    Sketcher.Constraint("Coincident", 9, 3, 1, 3),
    Sketcher.Constraint("Coincident", 11, 3, 7, 3),
    Sketcher.Constraint("Coincident", 13, 3, 5, 3),
    Sketcher.Constraint("Equal", 1, 3),
    Sketcher.Constraint("Equal", 3, 5),
    Sketcher.Constraint("Equal", 5, 7),
    Sketcher.Constraint("Equal", 13, 15),
    Sketcher.Constraint("Symmetric", 3, 2, 4, 2, -1, 1),
    Sketcher.Constraint("Radius", 1, Q("1.5 mm")),
    Sketcher.Constraint("Radius", 9, Q("1.25 mm")),
    Sketcher.Constraint("DistanceX", 0, 1, 0, 2, Q("17.5 mm")),
    Sketcher.Constraint("DistanceY", 2, 1, 2, 2, Q("37.64 mm")),
])
pocket7 = body.newObject("PartDesign::Pocket", "Pocket006")
pocket7.Profile = sketch15
pocket7.Length = 0.5
pocket7.Reversed = True

# Sketch on YZ plane
sketch16 = body.newObject("Sketcher::SketchObject", "Sketch015")
sketch16.AttachmentSupport = (doc.getObject("YZ_Plane"), [""])
sketch16.MapMode = "FlatFace"
sketch16.AttachmentOffset = App.Placement(App.Vector(0, 0, 10.25), App.Rotation())
sketch16.addGeometry([
    Part.LineSegment(App.Vector(8.25, 0, 0), App.Vector(0, 0, 0)),
    Part.LineSegment(App.Vector(0, 0, 0), App.Vector(0, -50.439593, 0)),
    Part.LineSegment(App.Vector(0, -50.439593, 0), App.Vector(8.25, -50.439593, 0)),
    Part.LineSegment(App.Vector(8.25, -50.439593, 0), App.Vector(8.25, 0, 0)),
], False)
sketch16.addConstraint([
    Sketcher.Constraint("Coincident", 0, 2, 1, 1),
    Sketcher.Constraint("Coincident", 1, 2, 2, 1),
    Sketcher.Constraint("Coincident", 2, 2, 3, 1),
    Sketcher.Constraint("Coincident", 3, 2, 0, 1),
    Sketcher.Constraint("Horizontal", 0),
    Sketcher.Constraint("Vertical", 1),
    Sketcher.Constraint("Horizontal", 2),
    Sketcher.Constraint("Vertical", 3),
    Sketcher.Constraint("Coincident", 0, 2, -1, 1),
    Sketcher.Constraint("DistanceX", 0, 2, 0, 1, Q("8.25 mm")),
    Sketcher.Constraint("DistanceY", 1, 2, 1, 1, Q("50.439593 mm")),
])
pocket8 = body.newObject("PartDesign::Pocket", "Pocket007")
pocket8.Profile = sketch16
pocket8.Type = "ThroughAll"

# Sketch on XZ plane
sketch17 = body.newObject("Sketcher::SketchObject", "Sketch016")
sketch17.AttachmentSupport = (doc.getObject("XZ_Plane"), [""])
sketch17.MapMode = "FlatFace"
sketch17.AttachmentOffset = App.Placement(App.Vector(0, 0, -8.25), App.Rotation())
sketch17.addGeometry(Part.Circle(App.Vector(0, -10.5, 0), App.Vector(0, 0, 1), 8.5), False)
sketch17.addConstraint([
    Sketcher.Constraint("PointOnObject", 0, 3, -2),
    Sketcher.Constraint("Diameter", 0, Q("17 mm")),
    Sketcher.Constraint("DistanceY", 0, 3, -1, 1, Q("10.5 mm")),
])
pad9 = body.newObject("PartDesign::Pad", "Pad008")
pad9.Profile = sketch17
pad9.Length = 4

doc.recompute()
